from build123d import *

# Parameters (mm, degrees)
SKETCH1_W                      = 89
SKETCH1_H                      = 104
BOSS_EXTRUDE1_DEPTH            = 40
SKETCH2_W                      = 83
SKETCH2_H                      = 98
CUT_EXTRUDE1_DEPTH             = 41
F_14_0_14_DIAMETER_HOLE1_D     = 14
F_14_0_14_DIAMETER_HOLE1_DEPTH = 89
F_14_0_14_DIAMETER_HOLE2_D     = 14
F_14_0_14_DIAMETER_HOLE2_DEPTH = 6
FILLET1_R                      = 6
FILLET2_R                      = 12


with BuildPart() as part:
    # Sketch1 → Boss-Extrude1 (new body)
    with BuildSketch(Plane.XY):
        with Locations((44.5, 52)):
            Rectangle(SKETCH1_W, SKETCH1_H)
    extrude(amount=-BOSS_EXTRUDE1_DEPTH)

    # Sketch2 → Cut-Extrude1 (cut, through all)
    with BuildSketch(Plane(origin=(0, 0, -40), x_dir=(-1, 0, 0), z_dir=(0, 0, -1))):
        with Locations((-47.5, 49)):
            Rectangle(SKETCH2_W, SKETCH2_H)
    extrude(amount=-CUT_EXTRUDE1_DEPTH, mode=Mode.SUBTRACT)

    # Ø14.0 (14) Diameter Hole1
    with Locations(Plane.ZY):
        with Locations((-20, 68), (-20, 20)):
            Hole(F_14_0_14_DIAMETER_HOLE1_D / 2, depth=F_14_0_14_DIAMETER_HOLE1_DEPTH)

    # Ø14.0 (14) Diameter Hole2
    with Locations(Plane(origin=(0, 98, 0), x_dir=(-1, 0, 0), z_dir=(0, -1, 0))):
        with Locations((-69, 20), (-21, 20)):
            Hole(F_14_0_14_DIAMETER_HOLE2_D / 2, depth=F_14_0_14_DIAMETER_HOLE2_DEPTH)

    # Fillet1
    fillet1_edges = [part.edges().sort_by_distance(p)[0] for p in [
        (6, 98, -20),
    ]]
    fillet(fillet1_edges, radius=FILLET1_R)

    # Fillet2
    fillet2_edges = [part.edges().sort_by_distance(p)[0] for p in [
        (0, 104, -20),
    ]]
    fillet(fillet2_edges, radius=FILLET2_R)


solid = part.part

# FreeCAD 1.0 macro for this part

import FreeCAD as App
import Part
import Sketcher


def edges_at(feature, points):
    """Names of the edges that pass closest to the given points."""
    edges = feature.Shape.Edges
    near = lambda p: min(range(len(edges)), key=lambda i: edges[i].distToShape(Part.Vertex(*p))[0])
    return sorted({f"Edge{near(p) + 1}" for p in points})


def add_polygon(sketch, points):
    """Adds a closed chain of lines whose ends are joined by coincident constraints."""
    first, n = sketch.GeometryCount, len(points)
    for a, b in zip(points, points[1:] + points[:1]):
        sketch.addGeometry(Part.LineSegment(App.Vector(*a, 0), App.Vector(*b, 0)), False)
    for i in range(n):
        sketch.addConstraint(Sketcher.Constraint("Coincident", first + i, 2, first + (i + 1) % n, 1))

doc = App.newDocument("Part")
body = doc.addObject("PartDesign::Body", "Body")

sketch1 = body.newObject("Sketcher::SketchObject", "Sketch")
sketch1.AttachmentSupport = (doc.getObject("XY_Plane"), [""])
sketch1.MapMode = "FlatFace"
add_polygon(sketch1, [(0, 104), (0, 0), (89, 0), (89, 104)])
sketch1.addConstraint(Sketcher.Constraint("Vertical", 0))
sketch1.addConstraint(Sketcher.Constraint("Horizontal", 1))
sketch1.addConstraint(Sketcher.Constraint("Vertical", 2))
sketch1.addConstraint(Sketcher.Constraint("Horizontal", 3))
sketch1.addConstraint(Sketcher.Constraint("Coincident", 0, 2, -1, 1))
sketch1.addConstraint(Sketcher.Constraint("DistanceX", 1, 1, 1, 2, 89.0))
sketch1.addConstraint(Sketcher.Constraint("DistanceY", 0, 2, 0, 1, 104.0))
pad1 = body.newObject("PartDesign::Pad", "Pad")
pad1.Profile = sketch1
pad1.Length = 40
pad1.Reversed = True

sketch2 = body.newObject("Sketcher::SketchObject", "Sketch001")
sketch2.AttachmentSupport = (doc.getObject("XY_Plane"), [""])
sketch2.MapMode = "FlatFace"
sketch2.AttachmentOffset = App.Placement(App.Vector(0, 0, -40), App.Rotation())
add_polygon(sketch2, [(89, 98), (89, 0), (6, 0), (6, 98)])
sketch2.addConstraint(Sketcher.Constraint("Vertical", 0))
sketch2.addConstraint(Sketcher.Constraint("Horizontal", 1))
sketch2.addConstraint(Sketcher.Constraint("Vertical", 2))
sketch2.addConstraint(Sketcher.Constraint("Horizontal", 3))
sketch2.addConstraint(Sketcher.Constraint("PointOnObject", 0, 2, -1))
sketch2.addConstraint(Sketcher.Constraint("DistanceX", 1, 2, 1, 1, 83.0))
sketch2.addConstraint(Sketcher.Constraint("DistanceY", 0, 2, 0, 1, 98.0))
sketch2.addConstraint(Sketcher.Constraint("DistanceX", -1, 1, 0, 2, 89.0))
pocket1 = body.newObject("PartDesign::Pocket", "Pocket")
pocket1.Profile = sketch2
pocket1.Type = "ThroughAll"
pocket1.Reversed = True

sketch3 = body.newObject("Sketcher::SketchObject", "Sketch002")
sketch3.AttachmentSupport = (doc.getObject("YZ_Plane"), [""])
sketch3.MapMode = "FlatFace"
sketch3.addGeometry(Part.Circle(App.Vector(68, -20, 0), App.Vector(0, 0, 1), 7), False)
sketch3.addGeometry(Part.Circle(App.Vector(20, -20, 0), App.Vector(0, 0, 1), 7), False)
sketch3.addConstraint(Sketcher.Constraint("Equal", 0, 1))
sketch3.addConstraint(Sketcher.Constraint("Horizontal", 0, 3, 1, 3))
sketch3.addConstraint(Sketcher.Constraint("Diameter", 0, 14.0))
sketch3.addConstraint(Sketcher.Constraint("DistanceX", -1, 1, 0, 3, 68.0))
sketch3.addConstraint(Sketcher.Constraint("DistanceY", 0, 3, -1, 1, 20.0))
sketch3.addConstraint(Sketcher.Constraint("DistanceX", -1, 1, 1, 3, 20.0))
doc.recompute()
hole = body.newObject("PartDesign::Hole", "Hole")
hole.Profile = sketch3
hole.ThreadType = "None"
hole.Diameter = 14
hole.DepthType = "Dimension"
hole.Depth = 89
hole.DrillPoint = "Flat"
hole.Reversed = True

sketch4 = body.newObject("Sketcher::SketchObject", "Sketch003")
sketch4.AttachmentSupport = (doc.getObject("XZ_Plane"), [""])
sketch4.MapMode = "FlatFace"
sketch4.AttachmentOffset = App.Placement(App.Vector(0, 0, -98), App.Rotation())
sketch4.addGeometry(Part.Circle(App.Vector(69, -20, 0), App.Vector(0, 0, 1), 7), False)
sketch4.addGeometry(Part.Circle(App.Vector(21, -20, 0), App.Vector(0, 0, 1), 7), False)
sketch4.addConstraint(Sketcher.Constraint("Equal", 0, 1))
sketch4.addConstraint(Sketcher.Constraint("Horizontal", 0, 3, 1, 3))
sketch4.addConstraint(Sketcher.Constraint("Diameter", 0, 14.0))
sketch4.addConstraint(Sketcher.Constraint("DistanceX", -1, 1, 0, 3, 69.0))
sketch4.addConstraint(Sketcher.Constraint("DistanceY", 0, 3, -1, 1, 20.0))
sketch4.addConstraint(Sketcher.Constraint("DistanceX", -1, 1, 1, 3, 21.0))
doc.recompute()
hole2 = body.newObject("PartDesign::Hole", "Hole001")
hole2.Profile = sketch4
hole2.ThreadType = "None"
hole2.Diameter = 14
hole2.DepthType = "Dimension"
hole2.Depth = 6
hole2.DrillPoint = "Flat"
doc.recompute()

fillet = body.newObject("PartDesign::Fillet", "Fillet")
fillet.Base = (hole2, edges_at(hole2, [(6, 98, -20)]))
fillet.Radius = 6
doc.recompute()

fillet2 = body.newObject("PartDesign::Fillet", "Fillet001")
fillet2.Base = (fillet, edges_at(fillet, [(0, 104, -20)]))
fillet2.Radius = 12

doc.recompute()
